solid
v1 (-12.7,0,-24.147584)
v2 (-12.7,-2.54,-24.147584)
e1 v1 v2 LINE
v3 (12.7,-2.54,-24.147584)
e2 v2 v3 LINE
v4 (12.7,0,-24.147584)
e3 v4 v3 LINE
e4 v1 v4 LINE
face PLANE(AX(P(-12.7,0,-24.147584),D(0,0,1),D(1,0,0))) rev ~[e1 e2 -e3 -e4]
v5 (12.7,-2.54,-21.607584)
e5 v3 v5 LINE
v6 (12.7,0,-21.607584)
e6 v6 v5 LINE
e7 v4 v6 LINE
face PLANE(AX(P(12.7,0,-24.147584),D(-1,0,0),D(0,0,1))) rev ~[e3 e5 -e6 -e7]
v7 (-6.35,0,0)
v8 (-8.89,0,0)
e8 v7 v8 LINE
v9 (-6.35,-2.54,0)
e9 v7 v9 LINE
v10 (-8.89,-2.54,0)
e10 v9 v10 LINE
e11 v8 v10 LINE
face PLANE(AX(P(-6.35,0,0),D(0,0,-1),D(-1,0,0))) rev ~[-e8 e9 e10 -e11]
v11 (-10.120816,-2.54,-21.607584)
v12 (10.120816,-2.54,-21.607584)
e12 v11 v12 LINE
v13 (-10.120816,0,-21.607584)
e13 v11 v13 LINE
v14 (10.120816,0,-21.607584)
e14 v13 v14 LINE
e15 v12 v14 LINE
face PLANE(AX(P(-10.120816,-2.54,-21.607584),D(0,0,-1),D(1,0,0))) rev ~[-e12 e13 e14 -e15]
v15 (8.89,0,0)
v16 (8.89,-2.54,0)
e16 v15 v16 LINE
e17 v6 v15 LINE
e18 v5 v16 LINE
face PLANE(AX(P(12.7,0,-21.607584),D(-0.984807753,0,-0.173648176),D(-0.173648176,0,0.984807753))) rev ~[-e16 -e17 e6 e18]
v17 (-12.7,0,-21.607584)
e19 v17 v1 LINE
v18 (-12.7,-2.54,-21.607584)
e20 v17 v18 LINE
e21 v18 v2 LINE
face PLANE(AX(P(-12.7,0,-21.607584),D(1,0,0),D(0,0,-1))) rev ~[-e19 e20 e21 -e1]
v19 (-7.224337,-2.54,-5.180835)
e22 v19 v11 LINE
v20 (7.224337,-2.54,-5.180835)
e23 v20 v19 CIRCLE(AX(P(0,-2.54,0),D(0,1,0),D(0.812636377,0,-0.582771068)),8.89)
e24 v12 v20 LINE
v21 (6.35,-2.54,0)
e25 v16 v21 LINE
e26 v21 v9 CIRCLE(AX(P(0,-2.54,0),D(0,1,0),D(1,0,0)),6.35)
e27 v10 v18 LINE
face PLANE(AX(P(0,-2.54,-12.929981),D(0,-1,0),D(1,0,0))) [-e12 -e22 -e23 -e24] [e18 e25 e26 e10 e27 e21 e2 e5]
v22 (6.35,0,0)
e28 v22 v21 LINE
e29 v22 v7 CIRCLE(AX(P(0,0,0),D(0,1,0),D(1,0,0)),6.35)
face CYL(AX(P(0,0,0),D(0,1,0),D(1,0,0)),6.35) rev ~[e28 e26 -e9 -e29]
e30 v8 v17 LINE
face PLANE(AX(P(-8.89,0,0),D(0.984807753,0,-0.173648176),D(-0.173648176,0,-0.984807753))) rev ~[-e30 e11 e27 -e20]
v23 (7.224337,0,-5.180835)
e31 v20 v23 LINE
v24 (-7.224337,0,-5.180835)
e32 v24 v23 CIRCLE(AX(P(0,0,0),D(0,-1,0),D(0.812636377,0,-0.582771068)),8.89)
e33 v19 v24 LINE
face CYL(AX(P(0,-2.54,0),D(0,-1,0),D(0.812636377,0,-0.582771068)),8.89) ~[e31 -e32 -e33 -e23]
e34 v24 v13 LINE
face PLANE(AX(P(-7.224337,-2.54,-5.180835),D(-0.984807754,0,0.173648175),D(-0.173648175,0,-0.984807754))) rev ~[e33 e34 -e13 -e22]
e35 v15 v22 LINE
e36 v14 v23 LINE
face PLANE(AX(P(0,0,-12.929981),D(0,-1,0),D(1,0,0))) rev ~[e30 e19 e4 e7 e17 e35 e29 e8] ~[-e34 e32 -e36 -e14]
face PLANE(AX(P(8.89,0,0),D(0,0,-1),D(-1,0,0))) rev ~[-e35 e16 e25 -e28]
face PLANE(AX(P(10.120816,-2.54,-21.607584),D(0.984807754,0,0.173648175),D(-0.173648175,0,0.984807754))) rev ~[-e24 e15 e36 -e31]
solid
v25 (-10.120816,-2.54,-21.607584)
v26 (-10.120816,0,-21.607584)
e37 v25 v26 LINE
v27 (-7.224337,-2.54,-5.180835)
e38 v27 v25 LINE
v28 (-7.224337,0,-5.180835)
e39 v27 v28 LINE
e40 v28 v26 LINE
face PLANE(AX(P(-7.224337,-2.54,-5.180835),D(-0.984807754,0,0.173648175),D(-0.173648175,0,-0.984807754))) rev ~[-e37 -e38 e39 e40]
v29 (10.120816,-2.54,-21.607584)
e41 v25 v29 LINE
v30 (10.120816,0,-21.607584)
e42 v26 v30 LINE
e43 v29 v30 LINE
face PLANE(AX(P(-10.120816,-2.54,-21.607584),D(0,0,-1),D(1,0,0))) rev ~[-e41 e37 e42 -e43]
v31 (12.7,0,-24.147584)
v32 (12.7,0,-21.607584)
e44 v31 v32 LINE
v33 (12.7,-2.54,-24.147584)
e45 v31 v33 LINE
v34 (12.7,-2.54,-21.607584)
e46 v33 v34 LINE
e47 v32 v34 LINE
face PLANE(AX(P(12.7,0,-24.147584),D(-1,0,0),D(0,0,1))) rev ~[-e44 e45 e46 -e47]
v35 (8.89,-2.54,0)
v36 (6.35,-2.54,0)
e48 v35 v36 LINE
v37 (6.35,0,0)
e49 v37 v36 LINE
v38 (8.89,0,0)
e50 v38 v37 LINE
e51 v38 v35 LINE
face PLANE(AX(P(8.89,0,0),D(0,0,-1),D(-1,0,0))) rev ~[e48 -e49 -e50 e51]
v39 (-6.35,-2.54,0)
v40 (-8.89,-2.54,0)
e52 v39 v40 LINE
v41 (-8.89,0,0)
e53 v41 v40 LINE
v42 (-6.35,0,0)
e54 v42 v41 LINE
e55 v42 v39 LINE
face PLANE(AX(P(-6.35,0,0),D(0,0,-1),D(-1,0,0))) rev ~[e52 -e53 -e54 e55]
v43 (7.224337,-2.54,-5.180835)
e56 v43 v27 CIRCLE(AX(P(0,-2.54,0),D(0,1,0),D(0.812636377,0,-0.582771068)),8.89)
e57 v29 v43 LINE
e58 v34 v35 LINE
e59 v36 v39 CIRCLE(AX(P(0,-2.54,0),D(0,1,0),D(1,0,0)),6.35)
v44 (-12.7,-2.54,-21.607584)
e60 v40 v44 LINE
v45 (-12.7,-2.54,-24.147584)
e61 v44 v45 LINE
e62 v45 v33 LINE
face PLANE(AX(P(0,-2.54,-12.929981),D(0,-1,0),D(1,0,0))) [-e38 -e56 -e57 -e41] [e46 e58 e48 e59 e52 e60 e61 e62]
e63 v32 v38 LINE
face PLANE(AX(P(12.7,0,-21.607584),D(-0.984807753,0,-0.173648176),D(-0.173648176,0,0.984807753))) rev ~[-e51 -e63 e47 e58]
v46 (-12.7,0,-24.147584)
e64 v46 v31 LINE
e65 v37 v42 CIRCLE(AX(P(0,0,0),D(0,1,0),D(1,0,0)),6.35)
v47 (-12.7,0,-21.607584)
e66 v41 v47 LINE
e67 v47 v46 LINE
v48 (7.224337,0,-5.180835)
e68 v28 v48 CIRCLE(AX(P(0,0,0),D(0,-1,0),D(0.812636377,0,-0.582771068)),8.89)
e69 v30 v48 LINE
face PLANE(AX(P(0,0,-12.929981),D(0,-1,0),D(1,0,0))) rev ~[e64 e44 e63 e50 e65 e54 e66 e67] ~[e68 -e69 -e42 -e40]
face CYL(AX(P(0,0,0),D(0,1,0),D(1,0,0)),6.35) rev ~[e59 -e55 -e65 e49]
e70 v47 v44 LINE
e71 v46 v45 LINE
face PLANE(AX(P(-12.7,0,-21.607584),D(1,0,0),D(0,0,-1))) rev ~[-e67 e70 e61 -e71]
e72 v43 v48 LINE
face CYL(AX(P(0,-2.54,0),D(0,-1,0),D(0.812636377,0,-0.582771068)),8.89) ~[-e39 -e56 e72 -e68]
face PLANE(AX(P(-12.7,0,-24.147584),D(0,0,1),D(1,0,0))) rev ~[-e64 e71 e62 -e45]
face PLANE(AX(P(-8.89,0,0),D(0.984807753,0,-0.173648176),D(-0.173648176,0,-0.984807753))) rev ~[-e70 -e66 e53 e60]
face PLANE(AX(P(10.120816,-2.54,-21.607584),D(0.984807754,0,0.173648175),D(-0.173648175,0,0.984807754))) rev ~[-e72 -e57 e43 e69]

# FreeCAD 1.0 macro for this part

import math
import FreeCAD as App
import Part
import Sketcher
from FreeCAD import Vector
Q = App.Units.Quantity

doc = App.newDocument("Part")
params = doc.addObject("Spreadsheet::Sheet", "Params")
for row, (alias, value) in enumerate([
    ("sketch1_width", "1 in"),
    ("sketch1_radius", "0.25 in"),
    ("sketch1_width2", "0.1 in"),
    ("pad1_length", "0.1 in"),
    ("sketch2_radius", "0.35 in"),
    ("pad2_length", "2.541 mm"),
], start=1):
    params.set(f"A{row}", alias)
    params.set(f"B{row}", "=" + value)
    params.setAlias(f"B{row}", alias)

body = doc.addObject("PartDesign::Body", "Body")

sketch1 = doc.addObject("Sketcher::SketchObject", "Sketch")
body.addObject(sketch1)
sketch1.AttachmentSupport = (doc.XZ_Plane, [""])
sketch1.MapMode = "FlatFace"
sketch1.addGeometry([
    Part.ArcOfCircle(Part.Circle(Vector(0, 0, 0), Vector(0, 0, 1), 6.3), math.radians(180), math.radians(360)),
    Part.LineSegment(Vector(-6.3, 0, 0), Vector(-8.9, 0, 0)),
    Part.LineSegment(Vector(-8.9, 0, 0), Vector(-12.7, -21.6, 0)),
    Part.LineSegment(Vector(-12.7, -21.6, 0), Vector(-12.7, -24.1, 0)),
    Part.LineSegment(Vector(-12.7, -24.1, 0), Vector(12.7, -24.1, 0)),
    Part.LineSegment(Vector(12.7, -24.1, 0), Vector(12.7, -21.6, 0)),
    Part.LineSegment(Vector(12.7, -21.6, 0), Vector(8.9, 0, 0)),
    Part.LineSegment(Vector(8.9, 0, 0), Vector(6.3, 0, 0)),
], False)
sketch1.addConstraint([
    Sketcher.Constraint("Coincident", 0, 1, 1, 1),
    Sketcher.Constraint("Coincident", 1, 2, 2, 1),
    Sketcher.Constraint("Coincident", 2, 2, 3, 1),
    Sketcher.Constraint("Coincident", 3, 2, 4, 1),
    Sketcher.Constraint("Coincident", 4, 2, 5, 1),
    Sketcher.Constraint("Coincident", 5, 2, 6, 1),
    Sketcher.Constraint("Coincident", 6, 2, 7, 1),
    Sketcher.Constraint("Coincident", 7, 2, 0, 2),
    Sketcher.Constraint("Horizontal", 1),
    Sketcher.Constraint("Vertical", 3),
    Sketcher.Constraint("Horizontal", 4),
    Sketcher.Constraint("Vertical", 5),
    Sketcher.Constraint("Horizontal", 7),
    Sketcher.Constraint("Coincident", 0, 3, -1, 1),
    Sketcher.Constraint("Symmetric", 1, 2, 6, 2, -1, 1),
    Sketcher.Constraint("Symmetric", 2, 2, 5, 2, -2),
    Sketcher.Constraint("PointOnObject", 0, 1, -1),
    Sketcher.Constraint("Equal", 7, 3),
    Sketcher.Constraint("DistanceX", 4, 1, 4, 2, Q("1 in")),
    Sketcher.Constraint("Radius", 0, Q("0.25 in")),
    Sketcher.Constraint("DistanceX", 1, 2, 1, 1, Q("0.1 in")),
    Sketcher.Constraint("Angle", 2, Q("-100 deg")),
])
sketch1.setExpression("Constraints[18]", "Params.sketch1_width")
sketch1.setExpression("Constraints[19]", "Params.sketch1_radius")
sketch1.setExpression("Constraints[20]", "Params.sketch1_width2")
pad1 = doc.addObject("PartDesign::Pad", "Pad")
body.addObject(pad1)
pad1.Profile = sketch1
pad1.setExpression("Length", "Params.pad1_length")
body2 = doc.addObject("PartDesign::Body", "Body001")
doc.recompute()

body2.BaseFeature = body
doc.recompute()
body3 = doc.addObject("PartDesign::Body", "Body002")

sketch2 = doc.addObject("Sketcher::SketchObject", "Sketch001")
body3.addObject(sketch2)
sketch2.AttachmentSupport = (doc.getObject("XZ_Plane002"), [""])
sketch2.MapMode = "FlatFace"
sketch2.AttachmentOffset = App.Placement(Vector(0, 0, 0.1 * 25.4), App.Rotation())
sketch2.addGeometry([
    Part.LineSegment(Vector(-7, -5, 0), Vector(-10, -22, 0)),
    Part.LineSegment(Vector(-10, -22, 0), Vector(10, -22, 0)),
    Part.LineSegment(Vector(10, -22, 0), Vector(7, -5, 0)),
    Part.ArcOfCircle(Part.Circle(Vector(0, 0, 0), Vector(0, 0, 1), 9), math.radians(-144), math.radians(-36)),
], False)
sketch2.addConstraint([
    Sketcher.Constraint("Coincident", 0, 2, 1, 1),
    Sketcher.Constraint("Coincident", 1, 2, 2, 1),
    Sketcher.Constraint("Coincident", 2, 2, 3, 2),
    Sketcher.Constraint("Coincident", 3, 1, 0, 1),
    Sketcher.Constraint("Horizontal", 1),
    Sketcher.Constraint("Coincident", 3, 3, -1, 1),
    Sketcher.Constraint("Horizontal", 2, 2, 3, 1),
    Sketcher.Constraint("Equal", 0, 2),
    Sketcher.Constraint("Radius", 3, Q("0.35 in")),
    Sketcher.Constraint("Angle", 0, Q("-100 deg")),
    Sketcher.Constraint("DistanceX", 1, 1, 1, 2, 20.241632),
    Sketcher.Constraint("Distance", 0, 16.680158),
])
sketch2.setExpression("Constraints[8]", "Params.sketch2_radius")
pad2 = doc.addObject("PartDesign::Pad", "Pad001")
body3.addObject(pad2)
pad2.Profile = sketch2
pad2.setExpression("Length", "Params.pad2_length")
pad2.Reversed = True
doc.recompute()

body4 = doc.addObject("PartDesign::Body", "Body003")
body4.BaseFeature = body3
boolean = doc.addObject("PartDesign::Boolean", "Boolean")
body.addObject(boolean)
boolean.Type = "Cut"
boolean.addObjects([body4])
doc.recompute()

boolean2 = doc.addObject("PartDesign::Boolean", "Boolean001")
body2.addObject(boolean2)
boolean2.Type = "Cut"
boolean2.addObjects([body3])

doc.recompute()
